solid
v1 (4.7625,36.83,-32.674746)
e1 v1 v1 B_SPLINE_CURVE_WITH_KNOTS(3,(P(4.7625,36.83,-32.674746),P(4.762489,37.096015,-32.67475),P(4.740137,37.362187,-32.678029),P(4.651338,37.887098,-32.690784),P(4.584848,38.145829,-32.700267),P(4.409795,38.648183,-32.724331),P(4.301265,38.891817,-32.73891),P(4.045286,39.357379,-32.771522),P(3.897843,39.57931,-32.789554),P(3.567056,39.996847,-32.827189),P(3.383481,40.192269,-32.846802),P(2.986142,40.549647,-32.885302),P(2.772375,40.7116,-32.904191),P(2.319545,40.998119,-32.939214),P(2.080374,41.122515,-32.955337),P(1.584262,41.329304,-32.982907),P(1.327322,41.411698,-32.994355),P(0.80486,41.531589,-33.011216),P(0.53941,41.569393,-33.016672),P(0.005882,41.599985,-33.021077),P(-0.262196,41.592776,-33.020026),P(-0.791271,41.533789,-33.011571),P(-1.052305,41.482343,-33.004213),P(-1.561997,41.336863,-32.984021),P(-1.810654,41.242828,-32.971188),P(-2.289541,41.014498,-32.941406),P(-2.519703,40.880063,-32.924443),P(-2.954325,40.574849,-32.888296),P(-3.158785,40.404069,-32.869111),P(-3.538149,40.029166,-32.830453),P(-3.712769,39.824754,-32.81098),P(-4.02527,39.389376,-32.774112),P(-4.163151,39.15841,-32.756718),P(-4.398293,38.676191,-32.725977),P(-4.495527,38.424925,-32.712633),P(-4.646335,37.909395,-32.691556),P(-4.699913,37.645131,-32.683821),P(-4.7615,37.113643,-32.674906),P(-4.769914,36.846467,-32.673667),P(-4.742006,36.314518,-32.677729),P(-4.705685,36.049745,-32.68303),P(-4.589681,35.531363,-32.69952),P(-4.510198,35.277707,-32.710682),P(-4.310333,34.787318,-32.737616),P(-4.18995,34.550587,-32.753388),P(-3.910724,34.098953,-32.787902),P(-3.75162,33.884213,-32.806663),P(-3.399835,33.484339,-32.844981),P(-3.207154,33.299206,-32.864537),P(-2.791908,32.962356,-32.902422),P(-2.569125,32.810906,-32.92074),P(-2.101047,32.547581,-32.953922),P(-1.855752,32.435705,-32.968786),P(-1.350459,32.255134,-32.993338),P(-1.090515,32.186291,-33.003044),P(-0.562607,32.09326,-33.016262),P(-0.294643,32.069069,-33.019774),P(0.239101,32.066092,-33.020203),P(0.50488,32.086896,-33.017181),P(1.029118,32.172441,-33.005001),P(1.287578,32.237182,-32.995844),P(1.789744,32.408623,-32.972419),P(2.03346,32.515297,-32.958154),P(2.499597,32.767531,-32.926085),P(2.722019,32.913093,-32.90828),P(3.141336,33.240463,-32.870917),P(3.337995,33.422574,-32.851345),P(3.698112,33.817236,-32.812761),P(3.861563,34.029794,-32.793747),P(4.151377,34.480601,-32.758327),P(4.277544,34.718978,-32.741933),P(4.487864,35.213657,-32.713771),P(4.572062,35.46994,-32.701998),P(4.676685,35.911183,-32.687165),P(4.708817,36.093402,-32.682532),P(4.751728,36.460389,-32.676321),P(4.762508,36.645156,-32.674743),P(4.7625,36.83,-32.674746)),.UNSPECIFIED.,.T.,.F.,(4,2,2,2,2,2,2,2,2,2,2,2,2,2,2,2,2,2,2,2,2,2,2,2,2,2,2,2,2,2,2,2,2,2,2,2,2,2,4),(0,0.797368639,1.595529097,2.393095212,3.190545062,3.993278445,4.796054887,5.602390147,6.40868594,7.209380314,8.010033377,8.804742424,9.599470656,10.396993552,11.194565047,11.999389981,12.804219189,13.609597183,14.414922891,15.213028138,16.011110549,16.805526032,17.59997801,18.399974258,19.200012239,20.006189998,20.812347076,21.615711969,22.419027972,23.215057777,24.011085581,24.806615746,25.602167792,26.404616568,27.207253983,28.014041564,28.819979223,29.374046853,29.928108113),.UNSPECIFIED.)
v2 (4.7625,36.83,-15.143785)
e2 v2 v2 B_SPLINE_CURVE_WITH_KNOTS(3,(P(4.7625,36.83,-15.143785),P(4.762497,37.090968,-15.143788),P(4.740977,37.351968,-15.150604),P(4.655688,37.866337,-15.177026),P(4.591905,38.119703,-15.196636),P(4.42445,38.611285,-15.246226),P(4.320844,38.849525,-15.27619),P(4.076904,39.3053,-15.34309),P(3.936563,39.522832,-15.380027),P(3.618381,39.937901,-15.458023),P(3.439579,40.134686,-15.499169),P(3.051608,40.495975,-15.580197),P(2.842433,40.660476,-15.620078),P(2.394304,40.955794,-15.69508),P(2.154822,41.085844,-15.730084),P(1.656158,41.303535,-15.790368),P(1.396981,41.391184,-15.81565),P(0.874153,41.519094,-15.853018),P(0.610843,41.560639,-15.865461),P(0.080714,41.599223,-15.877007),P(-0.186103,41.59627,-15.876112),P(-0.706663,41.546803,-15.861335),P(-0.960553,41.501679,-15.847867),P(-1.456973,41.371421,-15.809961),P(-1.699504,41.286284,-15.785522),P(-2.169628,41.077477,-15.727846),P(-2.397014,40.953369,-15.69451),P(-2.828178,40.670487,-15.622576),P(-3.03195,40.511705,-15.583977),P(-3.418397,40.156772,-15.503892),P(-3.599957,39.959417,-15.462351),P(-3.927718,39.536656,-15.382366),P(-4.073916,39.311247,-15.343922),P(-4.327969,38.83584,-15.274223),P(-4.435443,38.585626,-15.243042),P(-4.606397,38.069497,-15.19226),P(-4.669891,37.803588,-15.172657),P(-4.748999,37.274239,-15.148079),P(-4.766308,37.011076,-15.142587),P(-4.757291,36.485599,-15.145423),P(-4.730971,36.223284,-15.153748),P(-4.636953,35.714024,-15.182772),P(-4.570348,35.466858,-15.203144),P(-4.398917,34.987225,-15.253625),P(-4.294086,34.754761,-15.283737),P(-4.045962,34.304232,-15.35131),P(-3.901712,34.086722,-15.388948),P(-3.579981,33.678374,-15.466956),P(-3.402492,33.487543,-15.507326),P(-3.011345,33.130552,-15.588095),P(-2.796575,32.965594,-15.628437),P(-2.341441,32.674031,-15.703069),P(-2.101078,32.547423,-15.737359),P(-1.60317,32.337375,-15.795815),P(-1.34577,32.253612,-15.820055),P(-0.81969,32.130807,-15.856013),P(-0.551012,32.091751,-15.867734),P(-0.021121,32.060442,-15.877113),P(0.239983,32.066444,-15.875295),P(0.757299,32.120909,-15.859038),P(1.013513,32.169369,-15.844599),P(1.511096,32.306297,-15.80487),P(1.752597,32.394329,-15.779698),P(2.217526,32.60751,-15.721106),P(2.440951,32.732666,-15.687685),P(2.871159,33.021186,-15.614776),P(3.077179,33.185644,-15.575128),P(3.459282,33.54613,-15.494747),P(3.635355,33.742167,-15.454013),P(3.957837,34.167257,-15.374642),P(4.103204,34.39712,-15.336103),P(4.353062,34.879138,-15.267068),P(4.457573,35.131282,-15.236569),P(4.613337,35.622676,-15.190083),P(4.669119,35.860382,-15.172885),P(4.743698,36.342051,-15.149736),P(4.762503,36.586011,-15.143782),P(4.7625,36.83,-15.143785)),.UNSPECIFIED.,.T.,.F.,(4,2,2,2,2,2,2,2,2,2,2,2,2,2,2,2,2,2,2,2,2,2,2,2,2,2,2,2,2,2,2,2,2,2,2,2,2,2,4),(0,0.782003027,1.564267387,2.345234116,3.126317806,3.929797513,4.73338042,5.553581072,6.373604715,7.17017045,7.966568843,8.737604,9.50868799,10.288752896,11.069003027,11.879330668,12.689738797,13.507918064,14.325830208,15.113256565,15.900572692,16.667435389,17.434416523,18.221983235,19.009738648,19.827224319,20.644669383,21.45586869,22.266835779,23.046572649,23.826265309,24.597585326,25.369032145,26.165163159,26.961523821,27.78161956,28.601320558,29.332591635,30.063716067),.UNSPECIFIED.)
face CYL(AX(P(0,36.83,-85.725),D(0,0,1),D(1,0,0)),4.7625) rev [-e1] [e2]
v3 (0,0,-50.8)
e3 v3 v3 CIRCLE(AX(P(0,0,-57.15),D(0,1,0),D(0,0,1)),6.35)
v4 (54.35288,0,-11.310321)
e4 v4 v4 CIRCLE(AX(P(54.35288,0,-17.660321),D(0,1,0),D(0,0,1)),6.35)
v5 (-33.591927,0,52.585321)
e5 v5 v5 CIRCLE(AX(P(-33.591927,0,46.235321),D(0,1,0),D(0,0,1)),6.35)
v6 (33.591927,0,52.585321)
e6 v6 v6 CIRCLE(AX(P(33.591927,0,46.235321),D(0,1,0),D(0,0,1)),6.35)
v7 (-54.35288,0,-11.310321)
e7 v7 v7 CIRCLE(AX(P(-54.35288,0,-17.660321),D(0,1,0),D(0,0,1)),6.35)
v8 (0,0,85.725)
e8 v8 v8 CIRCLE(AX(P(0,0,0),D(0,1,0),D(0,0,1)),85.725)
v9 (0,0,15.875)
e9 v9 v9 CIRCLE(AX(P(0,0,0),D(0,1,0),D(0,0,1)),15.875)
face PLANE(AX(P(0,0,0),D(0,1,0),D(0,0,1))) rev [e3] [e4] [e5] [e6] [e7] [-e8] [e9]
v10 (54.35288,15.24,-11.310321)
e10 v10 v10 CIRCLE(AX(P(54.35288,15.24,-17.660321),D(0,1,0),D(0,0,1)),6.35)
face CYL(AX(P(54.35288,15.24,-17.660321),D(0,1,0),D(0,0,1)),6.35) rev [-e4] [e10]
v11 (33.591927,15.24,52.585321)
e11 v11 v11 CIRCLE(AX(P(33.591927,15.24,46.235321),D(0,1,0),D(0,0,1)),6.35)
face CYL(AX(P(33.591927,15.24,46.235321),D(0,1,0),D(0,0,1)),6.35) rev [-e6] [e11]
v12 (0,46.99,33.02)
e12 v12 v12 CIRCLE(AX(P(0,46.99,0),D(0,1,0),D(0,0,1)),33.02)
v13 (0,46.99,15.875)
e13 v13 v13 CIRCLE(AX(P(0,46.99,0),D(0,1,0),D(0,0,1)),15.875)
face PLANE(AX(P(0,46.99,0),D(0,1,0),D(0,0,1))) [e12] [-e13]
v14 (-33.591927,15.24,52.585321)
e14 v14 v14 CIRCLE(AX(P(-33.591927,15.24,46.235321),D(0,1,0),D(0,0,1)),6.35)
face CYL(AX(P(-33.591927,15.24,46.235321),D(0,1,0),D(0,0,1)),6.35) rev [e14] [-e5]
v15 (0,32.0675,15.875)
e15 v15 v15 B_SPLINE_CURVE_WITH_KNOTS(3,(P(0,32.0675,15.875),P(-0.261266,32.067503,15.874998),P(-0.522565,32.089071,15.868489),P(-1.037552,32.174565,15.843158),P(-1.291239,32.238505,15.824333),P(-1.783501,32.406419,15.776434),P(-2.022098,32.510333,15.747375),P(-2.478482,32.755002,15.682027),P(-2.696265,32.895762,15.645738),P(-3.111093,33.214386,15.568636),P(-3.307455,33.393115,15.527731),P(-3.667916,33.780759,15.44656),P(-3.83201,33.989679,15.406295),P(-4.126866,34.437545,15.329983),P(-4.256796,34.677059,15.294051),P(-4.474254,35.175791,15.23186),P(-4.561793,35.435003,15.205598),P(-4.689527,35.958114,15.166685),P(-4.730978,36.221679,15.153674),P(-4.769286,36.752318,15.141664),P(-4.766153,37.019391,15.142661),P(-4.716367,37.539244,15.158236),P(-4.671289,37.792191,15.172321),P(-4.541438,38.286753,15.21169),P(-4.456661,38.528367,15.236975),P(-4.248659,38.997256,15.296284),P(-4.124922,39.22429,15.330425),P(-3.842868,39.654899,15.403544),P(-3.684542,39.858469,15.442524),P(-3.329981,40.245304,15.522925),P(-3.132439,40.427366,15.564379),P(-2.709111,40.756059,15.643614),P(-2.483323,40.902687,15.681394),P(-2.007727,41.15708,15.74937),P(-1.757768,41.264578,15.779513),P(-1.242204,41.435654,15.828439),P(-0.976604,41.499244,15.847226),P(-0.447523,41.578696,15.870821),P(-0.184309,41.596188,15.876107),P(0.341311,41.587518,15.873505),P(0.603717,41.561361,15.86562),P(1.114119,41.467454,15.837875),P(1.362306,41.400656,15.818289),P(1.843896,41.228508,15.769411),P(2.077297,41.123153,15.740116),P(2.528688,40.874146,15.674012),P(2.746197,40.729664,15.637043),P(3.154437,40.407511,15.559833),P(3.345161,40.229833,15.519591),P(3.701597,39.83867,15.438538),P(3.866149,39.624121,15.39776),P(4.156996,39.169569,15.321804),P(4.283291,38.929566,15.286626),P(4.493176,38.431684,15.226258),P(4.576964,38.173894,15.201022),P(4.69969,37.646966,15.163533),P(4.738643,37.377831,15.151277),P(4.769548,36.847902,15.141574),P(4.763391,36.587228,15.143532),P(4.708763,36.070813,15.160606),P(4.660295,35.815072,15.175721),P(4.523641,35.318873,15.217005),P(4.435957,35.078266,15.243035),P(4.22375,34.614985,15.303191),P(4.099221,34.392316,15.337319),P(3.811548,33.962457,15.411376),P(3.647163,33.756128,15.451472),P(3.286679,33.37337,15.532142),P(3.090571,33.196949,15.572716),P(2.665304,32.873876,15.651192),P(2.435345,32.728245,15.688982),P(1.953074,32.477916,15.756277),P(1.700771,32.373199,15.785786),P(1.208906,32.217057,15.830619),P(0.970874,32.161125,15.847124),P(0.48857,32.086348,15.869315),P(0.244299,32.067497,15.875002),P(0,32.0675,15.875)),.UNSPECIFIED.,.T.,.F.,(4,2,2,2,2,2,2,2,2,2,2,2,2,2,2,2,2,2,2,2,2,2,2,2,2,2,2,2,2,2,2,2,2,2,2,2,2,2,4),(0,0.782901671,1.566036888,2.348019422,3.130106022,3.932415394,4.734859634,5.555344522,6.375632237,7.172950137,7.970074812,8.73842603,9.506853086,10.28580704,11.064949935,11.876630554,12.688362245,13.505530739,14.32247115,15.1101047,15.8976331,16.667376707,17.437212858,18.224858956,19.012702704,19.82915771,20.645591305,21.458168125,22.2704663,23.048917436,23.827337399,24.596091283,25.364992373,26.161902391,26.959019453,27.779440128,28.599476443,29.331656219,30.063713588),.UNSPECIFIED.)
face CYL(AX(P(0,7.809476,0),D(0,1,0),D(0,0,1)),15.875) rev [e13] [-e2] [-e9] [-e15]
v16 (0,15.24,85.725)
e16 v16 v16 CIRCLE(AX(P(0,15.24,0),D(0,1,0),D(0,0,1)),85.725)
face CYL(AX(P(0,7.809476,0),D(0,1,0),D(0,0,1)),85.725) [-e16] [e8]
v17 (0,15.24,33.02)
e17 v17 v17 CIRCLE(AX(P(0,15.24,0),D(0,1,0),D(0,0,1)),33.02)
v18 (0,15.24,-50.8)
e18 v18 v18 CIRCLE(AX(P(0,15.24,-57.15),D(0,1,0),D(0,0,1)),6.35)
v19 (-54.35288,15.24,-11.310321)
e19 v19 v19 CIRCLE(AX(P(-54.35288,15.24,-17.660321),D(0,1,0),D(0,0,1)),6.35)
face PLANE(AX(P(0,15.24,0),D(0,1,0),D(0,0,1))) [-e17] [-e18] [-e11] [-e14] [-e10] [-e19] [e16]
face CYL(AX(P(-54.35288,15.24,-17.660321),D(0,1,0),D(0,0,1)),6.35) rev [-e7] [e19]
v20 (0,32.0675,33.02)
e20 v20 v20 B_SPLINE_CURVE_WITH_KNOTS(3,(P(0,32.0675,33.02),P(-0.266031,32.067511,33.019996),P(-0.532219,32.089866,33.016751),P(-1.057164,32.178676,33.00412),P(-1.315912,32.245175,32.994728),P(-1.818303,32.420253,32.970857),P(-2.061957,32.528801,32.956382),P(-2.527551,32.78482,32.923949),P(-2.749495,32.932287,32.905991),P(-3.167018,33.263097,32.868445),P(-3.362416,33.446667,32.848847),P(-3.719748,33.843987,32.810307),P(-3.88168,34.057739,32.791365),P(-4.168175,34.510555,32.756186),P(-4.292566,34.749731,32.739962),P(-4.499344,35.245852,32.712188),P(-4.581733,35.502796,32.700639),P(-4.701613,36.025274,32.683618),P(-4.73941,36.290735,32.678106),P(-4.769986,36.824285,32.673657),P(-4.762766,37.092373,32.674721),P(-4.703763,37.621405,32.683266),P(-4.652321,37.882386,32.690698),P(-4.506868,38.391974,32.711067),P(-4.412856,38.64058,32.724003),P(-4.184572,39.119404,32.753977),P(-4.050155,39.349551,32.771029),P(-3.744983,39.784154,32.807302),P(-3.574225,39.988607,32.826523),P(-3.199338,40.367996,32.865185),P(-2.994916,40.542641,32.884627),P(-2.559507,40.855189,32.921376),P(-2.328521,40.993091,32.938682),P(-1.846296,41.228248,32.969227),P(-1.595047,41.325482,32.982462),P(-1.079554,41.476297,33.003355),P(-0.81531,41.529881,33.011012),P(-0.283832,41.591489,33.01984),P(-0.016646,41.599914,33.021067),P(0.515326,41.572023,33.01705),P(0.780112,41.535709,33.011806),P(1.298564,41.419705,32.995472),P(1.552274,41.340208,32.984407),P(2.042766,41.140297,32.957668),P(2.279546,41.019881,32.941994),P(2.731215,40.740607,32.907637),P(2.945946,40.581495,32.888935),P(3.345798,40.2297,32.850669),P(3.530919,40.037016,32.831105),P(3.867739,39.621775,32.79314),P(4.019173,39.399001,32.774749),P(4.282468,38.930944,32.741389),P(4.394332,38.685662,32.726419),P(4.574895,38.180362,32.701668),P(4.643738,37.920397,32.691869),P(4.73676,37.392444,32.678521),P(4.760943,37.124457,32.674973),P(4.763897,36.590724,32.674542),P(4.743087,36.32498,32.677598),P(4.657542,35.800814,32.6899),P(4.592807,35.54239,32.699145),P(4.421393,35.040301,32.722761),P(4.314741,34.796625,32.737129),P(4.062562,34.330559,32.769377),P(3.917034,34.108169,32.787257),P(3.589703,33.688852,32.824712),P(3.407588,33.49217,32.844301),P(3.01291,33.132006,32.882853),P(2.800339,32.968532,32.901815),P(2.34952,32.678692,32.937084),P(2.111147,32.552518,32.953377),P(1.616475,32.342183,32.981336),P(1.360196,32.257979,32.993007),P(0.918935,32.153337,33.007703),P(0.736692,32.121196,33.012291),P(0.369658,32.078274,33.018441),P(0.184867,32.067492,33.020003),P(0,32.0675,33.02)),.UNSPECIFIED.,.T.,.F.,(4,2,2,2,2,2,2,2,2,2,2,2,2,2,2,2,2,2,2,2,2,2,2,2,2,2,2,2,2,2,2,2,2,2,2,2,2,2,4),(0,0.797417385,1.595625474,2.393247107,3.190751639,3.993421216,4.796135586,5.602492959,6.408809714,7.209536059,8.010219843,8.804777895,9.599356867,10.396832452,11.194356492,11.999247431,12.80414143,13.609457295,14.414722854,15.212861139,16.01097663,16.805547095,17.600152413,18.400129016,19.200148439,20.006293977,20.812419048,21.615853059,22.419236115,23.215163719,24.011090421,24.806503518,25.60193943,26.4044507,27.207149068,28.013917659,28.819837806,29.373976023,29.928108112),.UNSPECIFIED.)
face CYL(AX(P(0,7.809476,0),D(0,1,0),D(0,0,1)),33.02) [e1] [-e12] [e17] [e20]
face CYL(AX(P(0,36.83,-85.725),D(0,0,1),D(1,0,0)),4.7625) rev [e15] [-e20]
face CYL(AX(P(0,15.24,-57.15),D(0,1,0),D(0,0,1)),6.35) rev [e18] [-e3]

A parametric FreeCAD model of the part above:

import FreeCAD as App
import Part
import Sketcher
from FreeCAD import Vector
Q = App.Units.Quantity


def add_polygon(sketch, points):
    """Adds a closed chain of lines whose ends are joined by coincident constraints."""
    first, n = sketch.GeometryCount, len(points)
    for a, b in zip(points, points[1:] + points[:1]):
        sketch.addGeometry(Part.LineSegment(App.Vector(*a, 0), App.Vector(*b, 0)), False)
    for i in range(n):
        sketch.addConstraint(Sketcher.Constraint("Coincident", first + i, 2, first + (i + 1) % n, 1))

doc = App.newDocument("Part")
params = doc.addObject("Spreadsheet::Sheet", "Params")
for row, (alias, value) in enumerate([
    ("sketch1_height", "0.6 in"),
    ("sketch1_width", "2.75 in"),
    ("sketch1_height2", "1.85 in"),
    ("sketch1_width2", "2.075 in"),
    ("revolution_angle", "360 deg"),
    ("sketch2_diameter", "0.5 in"),
    ("hole_diameter", "0.5 in"),
    ("sketch3_diameter", "0.375 in"),
], start=1):
    params.set(f"A{row}", alias)
    params.set(f"B{row}", "=" + value)
    params.setAlias(f"B{row}", alias)

body = doc.addObject("PartDesign::Body", "Body")

# Sketch on XY plane
sketch1 = doc.addObject("Sketcher::SketchObject", "Sketch")
body.addObject(sketch1)
sketch1.AttachmentSupport = (doc.XY_Plane, [""])
sketch1.MapMode = "FlatFace"
add_polygon(sketch1, [(15.875, 46.99), (15.875, 0), (85.725, 0), (85.725, 15.24), (33.02, 15.24), (33.02, 46.99)])  # lines 0-5
sketch1.addConstraint(Sketcher.Constraint("Vertical", 0))
sketch1.addConstraint(Sketcher.Constraint("Horizontal", 1))
sketch1.addConstraint(Sketcher.Constraint("Vertical", 2))
sketch1.addConstraint(Sketcher.Constraint("Horizontal", 3))
sketch1.addConstraint(Sketcher.Constraint("Vertical", 4))
sketch1.addConstraint(Sketcher.Constraint("Horizontal", 5))
sketch1.addConstraint(Sketcher.Constraint("PointOnObject", 0, 2, -1))
sketch1.addConstraint(Sketcher.Constraint("DistanceY", 2, 1, 2, 2, Q("0.6 in")))
sketch1.addConstraint(Sketcher.Constraint("DistanceX", 1, 1, 1, 2, Q("2.75 in")))
sketch1.addConstraint(Sketcher.Constraint("DistanceY", 0, 2, 0, 1, Q("1.85 in")))
sketch1.addConstraint(Sketcher.Constraint("DistanceX", -1, 1, 3, 2, Q("1.3 in")))
sketch1.addConstraint(Sketcher.Constraint("DistanceX", 3, 2, 3, 1, Q("2.075 in")))
sketch1.setExpression("Constraints[13]", "Params.sketch1_height")
sketch1.setExpression("Constraints[14]", "Params.sketch1_width")
sketch1.setExpression("Constraints[15]", "Params.sketch1_height2")
sketch1.setExpression("Constraints[17]", "Params.sketch1_width2")
revolution = doc.addObject("PartDesign::Revolution", "Revolution")
body.addObject(revolution)
revolution.Profile = sketch1
revolution.ReferenceAxis = (sketch1, ["V_Axis"])
revolution.setExpression("Angle", "Params.revolution_angle")

# Sketch on XZ plane
sketch2 = doc.addObject("Sketcher::SketchObject", "Sketch001")
body.addObject(sketch2)
sketch2.AttachmentSupport = (doc.XZ_Plane, [""])
sketch2.MapMode = "FlatFace"
sketch2.AttachmentOffset = App.Placement(Vector(0, 0, -0.6 * 25.4), App.Rotation())
sketch2.addGeometry(Part.Circle(Vector(-54.35288, -17.660321, 0), Vector(0, 0, 1), 6.35), False)
sketch2.addGeometry(Part.Circle(Vector(0, -57.15, 0), Vector(0, 0, 1), 6.35), False)
sketch2.addGeometry(Part.Circle(Vector(54.35288, -17.660321, 0), Vector(0, 0, 1), 6.35), False)
sketch2.addGeometry(Part.Circle(Vector(33.591927, 46.235321, 0), Vector(0, 0, 1), 6.35), False)
sketch2.addGeometry(Part.Circle(Vector(-33.591927, 46.235321, 0), Vector(0, 0, 1), 6.35), False)
sketch2.addConstraint(Sketcher.Constraint("Equal", 0, 1))
sketch2.addConstraint(Sketcher.Constraint("Equal", 1, 2))
sketch2.addConstraint(Sketcher.Constraint("Equal", 2, 3))
sketch2.addConstraint(Sketcher.Constraint("Equal", 3, 4))
sketch2.addConstraint(Sketcher.Constraint("Symmetric", 0, 3, 2, 3, -2))
sketch2.addConstraint(Sketcher.Constraint("Symmetric", 3, 3, 4, 3, -2))
sketch2.addConstraint(Sketcher.Constraint("PointOnObject", 1, 3, -2))
sketch2.addConstraint(Sketcher.Constraint("Diameter", 0, Q("0.5 in")))
sketch2.addConstraint(Sketcher.Constraint("DistanceY", 1, 3, -1, 1, Q("2.25 in")))
sketch2.addConstraint(Sketcher.Constraint("DistanceX", 0, 3, -1, 1, 54.35288))
sketch2.addConstraint(Sketcher.Constraint("DistanceY", 0, 3, -1, 1, 17.660321))
sketch2.addConstraint(Sketcher.Constraint("DistanceY", -1, 1, 3, 3, 46.235321))
sketch2.addConstraint(Sketcher.Constraint("DistanceX", -1, 1, 3, 3, 33.591927))
sketch2.setExpression("Constraints[7]", "Params.sketch2_diameter")
doc.recompute()
hole = doc.addObject("PartDesign::Hole", "Hole")
body.addObject(hole)
hole.Profile = sketch2
hole.ThreadType = "None"
hole.setExpression("Diameter", "Params.hole_diameter")
hole.DepthType = "ThroughAll"
hole.Reversed = True

# Sketch on XY plane
sketch3 = doc.addObject("Sketcher::SketchObject", "Sketch002")
body.addObject(sketch3)
sketch3.AttachmentSupport = (doc.XY_Plane, [""])
sketch3.MapMode = "FlatFace"
sketch3.addGeometry(Part.Circle(Vector(0, 36.83, 0), Vector(0, 0, 1), 4.7625), False)
sketch3.addConstraint(Sketcher.Constraint("PointOnObject", 0, 3, -2))
sketch3.addConstraint(Sketcher.Constraint("Diameter", 0, Q("0.375 in")))
sketch3.addConstraint(Sketcher.Constraint("DistanceY", -1, 1, 0, 3, Q("1.45 in")))
sketch3.setExpression("Constraints[1]", "Params.sketch3_diameter")
pocket1 = doc.addObject("PartDesign::Pocket", "Pocket")
body.addObject(pocket1)
pocket1.Profile = sketch3
pocket1.Type = "ThroughAll"
pocket1.Midplane = True

doc.recompute()
